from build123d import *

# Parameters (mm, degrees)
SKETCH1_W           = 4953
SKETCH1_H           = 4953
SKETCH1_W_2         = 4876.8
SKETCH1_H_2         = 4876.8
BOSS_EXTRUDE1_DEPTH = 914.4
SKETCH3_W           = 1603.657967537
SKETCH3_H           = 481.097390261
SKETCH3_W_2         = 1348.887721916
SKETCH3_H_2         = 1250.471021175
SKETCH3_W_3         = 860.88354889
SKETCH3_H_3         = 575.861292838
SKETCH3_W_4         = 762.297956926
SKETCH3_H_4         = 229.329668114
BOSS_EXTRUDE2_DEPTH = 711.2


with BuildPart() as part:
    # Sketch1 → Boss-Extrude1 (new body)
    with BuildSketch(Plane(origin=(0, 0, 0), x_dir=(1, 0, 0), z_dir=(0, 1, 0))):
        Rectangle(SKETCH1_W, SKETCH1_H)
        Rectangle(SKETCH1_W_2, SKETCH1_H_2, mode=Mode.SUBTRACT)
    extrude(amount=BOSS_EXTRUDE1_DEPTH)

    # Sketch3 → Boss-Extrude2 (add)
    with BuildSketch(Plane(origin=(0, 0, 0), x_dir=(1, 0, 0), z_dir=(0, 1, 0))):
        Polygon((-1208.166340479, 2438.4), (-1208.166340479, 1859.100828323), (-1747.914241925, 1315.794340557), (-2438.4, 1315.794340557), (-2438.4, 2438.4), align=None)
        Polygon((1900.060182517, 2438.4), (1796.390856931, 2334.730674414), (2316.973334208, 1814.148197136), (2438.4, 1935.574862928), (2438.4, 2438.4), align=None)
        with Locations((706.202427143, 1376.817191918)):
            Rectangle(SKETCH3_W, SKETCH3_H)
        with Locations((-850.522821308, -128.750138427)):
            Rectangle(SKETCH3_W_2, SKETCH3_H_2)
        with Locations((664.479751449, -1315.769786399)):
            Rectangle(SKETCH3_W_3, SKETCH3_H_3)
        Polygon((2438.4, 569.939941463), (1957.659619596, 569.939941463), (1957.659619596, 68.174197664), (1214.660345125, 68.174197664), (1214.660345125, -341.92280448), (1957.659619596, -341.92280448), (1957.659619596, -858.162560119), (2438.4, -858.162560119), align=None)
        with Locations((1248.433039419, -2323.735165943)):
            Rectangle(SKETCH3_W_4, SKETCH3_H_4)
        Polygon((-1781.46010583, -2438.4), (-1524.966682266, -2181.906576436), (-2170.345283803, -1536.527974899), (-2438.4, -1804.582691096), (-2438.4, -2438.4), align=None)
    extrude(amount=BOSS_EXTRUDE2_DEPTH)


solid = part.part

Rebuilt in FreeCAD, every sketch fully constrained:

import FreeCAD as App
import Part
import Sketcher

V = App.Vector
Q = App.Units.Quantity

doc = App.newDocument("Part")
body = doc.addObject("PartDesign::Body", "Body")
body.AllowCompound = True

# Sketch on XZ plane
sketch1 = doc.addObject("Sketcher::SketchObject", "Sketch")
body.addObject(sketch1)
sketch1.AttachmentSupport = (doc.XZ_Plane, [""])
sketch1.MapMode = "FlatFace"
sketch1.addGeometry([
    Part.LineSegment(V(-2476.5, -2476.5, 0), V(-2476.5, 2476.5, 0)),  # 0
    Part.LineSegment(V(-2476.5, 2476.5, 0), V(2476.5, 2476.5, 0)),  # 1
    Part.LineSegment(V(2476.5, 2476.5, 0), V(2476.5, -2476.5, 0)),  # 2
    Part.LineSegment(V(2476.5, -2476.5, 0), V(-2476.5, -2476.5, 0)),  # 3
    Part.LineSegment(V(2438.4, 2438.4, 0), V(-2438.4, 2438.4, 0)),  # 4
    Part.LineSegment(V(-2438.4, 2438.4, 0), V(-2438.4, -2438.4, 0)),  # 5
    Part.LineSegment(V(-2438.4, -2438.4, 0), V(2438.4, -2438.4, 0)),  # 6
    Part.LineSegment(V(2438.4, -2438.4, 0), V(2438.4, 2438.4, 0)),  # 7
], False)
sketch1.addConstraint([
    Sketcher.Constraint("Coincident", 0, 2, 1, 1),
    Sketcher.Constraint("Coincident", 1, 2, 2, 1),
    Sketcher.Constraint("Coincident", 2, 2, 3, 1),
    Sketcher.Constraint("Coincident", 3, 2, 0, 1),
    Sketcher.Constraint("Coincident", 4, 2, 5, 1),
    Sketcher.Constraint("Coincident", 5, 2, 6, 1),
    Sketcher.Constraint("Coincident", 6, 2, 7, 1),
    Sketcher.Constraint("Coincident", 7, 2, 4, 1),
    Sketcher.Constraint("Vertical", 0),
    Sketcher.Constraint("Horizontal", 1),
    Sketcher.Constraint("Vertical", 2),
    Sketcher.Constraint("Horizontal", 3),
    Sketcher.Constraint("Horizontal", 4),
    Sketcher.Constraint("Vertical", 5),
    Sketcher.Constraint("Horizontal", 6),
    Sketcher.Constraint("Vertical", 7),
    Sketcher.Constraint("Symmetric", 0, 2, 2, 2, -1, 1),
    Sketcher.Constraint("Symmetric", 4, 2, 6, 2, -1, 1),
    Sketcher.Constraint("Equal", 3, 0),
    Sketcher.Constraint("Equal", 6, 5),
    Sketcher.Constraint("DistanceX", 1, 1, 1, 2, Q("195 in")),
    Sketcher.Constraint("DistanceX", 4, 2, 4, 1, Q("192 in")),
])
pad1 = doc.addObject("PartDesign::Pad", "Pad")
body.addObject(pad1)
pad1.Profile = sketch1
pad1.Length = Q("36 in")
pad1.Reversed = True

# Sketch on XZ plane
sketch2 = doc.addObject("Sketcher::SketchObject", "Sketch001")
body.addObject(sketch2)
sketch2.AttachmentSupport = (doc.XZ_Plane, [""])
sketch2.MapMode = "FlatFace"
sketch2.addGeometry([
    Part.LineSegment(V(-1208.16634, -1859.100828, 0), V(-1208.16634, -2438.4, 0)),  # 0
    Part.LineSegment(V(-1208.16634, -2438.4, 0), V(-2438.4, -2438.4, 0)),  # 1
    Part.LineSegment(V(-2438.4, -2438.4, 0), V(-2438.4, -1315.794341, 0)),  # 2
    Part.LineSegment(V(-2438.4, -1315.794341, 0), V(-1747.914242, -1315.794341, 0)),  # 3
    Part.LineSegment(V(-1747.914242, -1315.794341, 0), V(-1208.16634, -1859.100828, 0)),  # 4
    Part.LineSegment(V(1900.060183, -2438.4, 0), V(1796.390857, -2334.730674, 0)),  # 5
    Part.LineSegment(V(1796.390857, -2334.730674, 0), V(2316.973334, -1814.148197, 0)),  # 6
    Part.LineSegment(V(2316.973334, -1814.148197, 0), V(2438.4, -1935.574863, 0)),  # 7
    Part.LineSegment(V(2438.4, -1935.574863, 0), V(2438.4, -2438.4, 0)),  # 8
    Part.LineSegment(V(2438.4, -2438.4, 0), V(1900.060183, -2438.4, 0)),  # 9
    Part.LineSegment(V(-95.626557, -1617.365887, 0), V(-95.626557, -1136.268497, 0)),  # 10
    Part.LineSegment(V(-95.626557, -1136.268497, 0), V(1508.031411, -1136.268497, 0)),  # 11
    Part.LineSegment(V(1508.031411, -1136.268497, 0), V(1508.031411, -1617.365887, 0)),  # 12
    Part.LineSegment(V(1508.031411, -1617.365887, 0), V(-95.626557, -1617.365887, 0)),  # 13
    Part.LineSegment(V(-1524.966682, -496.485372, 0), V(-1524.966682, 753.985649, 0)),  # 14
    Part.LineSegment(V(-1524.966682, 753.985649, 0), V(-176.07896, 753.985649, 0)),  # 15
    Part.LineSegment(V(-176.07896, 753.985649, 0), V(-176.07896, -496.485372, 0)),  # 16
    Part.LineSegment(V(-176.07896, -496.485372, 0), V(-1524.966682, -496.485372, 0)),  # 17
    Part.LineSegment(V(234.037977, 1027.83914, 0), V(234.037977, 1603.700433, 0)),  # 18
    Part.LineSegment(V(234.037977, 1603.700433, 0), V(1094.921526, 1603.700433, 0)),  # 19
    Part.LineSegment(V(1094.921526, 1603.700433, 0), V(1094.921526, 1027.83914, 0)),  # 20
    Part.LineSegment(V(1094.921526, 1027.83914, 0), V(234.037977, 1027.83914, 0)),  # 21
    Part.LineSegment(V(2438.4, -569.939941, 0), V(1957.65962, -569.939941, 0)),  # 22
    Part.LineSegment(V(1957.65962, -569.939941, 0), V(1957.65962, -68.174198, 0)),  # 23
    Part.LineSegment(V(1957.65962, -68.174198, 0), V(1214.660345, -68.174198, 0)),  # 24
    Part.LineSegment(V(1214.660345, -68.174198, 0), V(1214.660345, 341.922804, 0)),  # 25
    Part.LineSegment(V(1214.660345, 341.922804, 0), V(1957.65962, 341.922804, 0)),  # 26
    Part.LineSegment(V(1957.65962, 341.922804, 0), V(1957.65962, 858.16256, 0)),  # 27
    Part.LineSegment(V(1957.65962, 858.16256, 0), V(2438.4, 858.16256, 0)),  # 28
    Part.LineSegment(V(2438.4, 858.16256, 0), V(2438.4, -569.939941, 0)),  # 29
    Part.LineSegment(V(867.284061, 2209.070332, 0), V(867.284061, 2438.4, 0)),  # 30
    Part.LineSegment(V(867.284061, 2438.4, 0), V(1629.582018, 2438.4, 0)),  # 31
    Part.LineSegment(V(1629.582018, 2438.4, 0), V(1629.582018, 2209.070332, 0)),  # 32
    Part.LineSegment(V(1629.582018, 2209.070332, 0), V(867.284061, 2209.070332, 0)),  # 33
    Part.LineSegment(V(-1781.460106, 2438.4, 0), V(-1524.966682, 2181.906576, 0)),  # 34
    Part.LineSegment(V(-1524.966682, 2181.906576, 0), V(-2170.345284, 1536.527975, 0)),  # 35
    Part.LineSegment(V(-2170.345284, 1536.527975, 0), V(-2438.4, 1804.582691, 0)),  # 36
    Part.LineSegment(V(-2438.4, 1804.582691, 0), V(-2438.4, 2438.4, 0)),  # 37
    Part.LineSegment(V(-2438.4, 2438.4, 0), V(-1781.460106, 2438.4, 0)),  # 38
], False)
sketch2.addConstraint([
    Sketcher.Constraint("Coincident", 0, 2, 1, 1),
    Sketcher.Constraint("Coincident", 1, 2, 2, 1),
    Sketcher.Constraint("Coincident", 2, 2, 3, 1),
    Sketcher.Constraint("Coincident", 3, 2, 4, 1),
    Sketcher.Constraint("Coincident", 4, 2, 0, 1),
    Sketcher.Constraint("Coincident", 5, 2, 6, 1),
    Sketcher.Constraint("Coincident", 6, 2, 7, 1),
    Sketcher.Constraint("Coincident", 7, 2, 8, 1),
    Sketcher.Constraint("Coincident", 8, 2, 9, 1),
    Sketcher.Constraint("Coincident", 9, 2, 5, 1),
    Sketcher.Constraint("Coincident", 10, 2, 11, 1),
    Sketcher.Constraint("Coincident", 11, 2, 12, 1),
    Sketcher.Constraint("Coincident", 12, 2, 13, 1),
    Sketcher.Constraint("Coincident", 13, 2, 10, 1),
    Sketcher.Constraint("Coincident", 14, 2, 15, 1),
    Sketcher.Constraint("Coincident", 15, 2, 16, 1),
    Sketcher.Constraint("Coincident", 16, 2, 17, 1),
    Sketcher.Constraint("Coincident", 17, 2, 14, 1),
    Sketcher.Constraint("Coincident", 18, 2, 19, 1),
    Sketcher.Constraint("Coincident", 19, 2, 20, 1),
    Sketcher.Constraint("Coincident", 20, 2, 21, 1),
    Sketcher.Constraint("Coincident", 21, 2, 18, 1),
    Sketcher.Constraint("Coincident", 22, 2, 23, 1),
    Sketcher.Constraint("Coincident", 23, 2, 24, 1),
    Sketcher.Constraint("Coincident", 24, 2, 25, 1),
    Sketcher.Constraint("Coincident", 25, 2, 26, 1),
    Sketcher.Constraint("Coincident", 26, 2, 27, 1),
    Sketcher.Constraint("Coincident", 27, 2, 28, 1),
    Sketcher.Constraint("Coincident", 28, 2, 29, 1),
    Sketcher.Constraint("Coincident", 29, 2, 22, 1),
    Sketcher.Constraint("Coincident", 30, 2, 31, 1),
    Sketcher.Constraint("Coincident", 31, 2, 32, 1),
    Sketcher.Constraint("Coincident", 32, 2, 33, 1),
    Sketcher.Constraint("Coincident", 33, 2, 30, 1),
    Sketcher.Constraint("Coincident", 34, 2, 35, 1),
    Sketcher.Constraint("Coincident", 35, 2, 36, 1),
    Sketcher.Constraint("Coincident", 36, 2, 37, 1),
    Sketcher.Constraint("Coincident", 37, 2, 38, 1),
    Sketcher.Constraint("Coincident", 38, 2, 34, 1),
    Sketcher.Constraint("Vertical", 0),
    Sketcher.Constraint("Horizontal", 1),
    Sketcher.Constraint("Vertical", 2),
    Sketcher.Constraint("Horizontal", 3),
    Sketcher.Constraint("Vertical", 8),
    Sketcher.Constraint("Horizontal", 9),
    Sketcher.Constraint("Vertical", 10),
    Sketcher.Constraint("Horizontal", 11),
    Sketcher.Constraint("Vertical", 12),
    Sketcher.Constraint("Horizontal", 13),
    Sketcher.Constraint("Vertical", 14),
    Sketcher.Constraint("Horizontal", 15),
    Sketcher.Constraint("Vertical", 16),
    Sketcher.Constraint("Horizontal", 17),
    Sketcher.Constraint("Vertical", 18),
    Sketcher.Constraint("Horizontal", 19),
    Sketcher.Constraint("Vertical", 20),
    Sketcher.Constraint("Horizontal", 21),
    Sketcher.Constraint("Horizontal", 22),
    Sketcher.Constraint("Vertical", 23),
    Sketcher.Constraint("Horizontal", 24),
    Sketcher.Constraint("Vertical", 25),
    Sketcher.Constraint("Horizontal", 26),
    Sketcher.Constraint("Vertical", 27),
    Sketcher.Constraint("Horizontal", 28),
    Sketcher.Constraint("Vertical", 29),
    Sketcher.Constraint("Vertical", 30),
    Sketcher.Constraint("Horizontal", 31),
    Sketcher.Constraint("Vertical", 32),
    Sketcher.Constraint("Horizontal", 33),
    Sketcher.Constraint("Vertical", 37),
    Sketcher.Constraint("Horizontal", 38),
    Sketcher.Constraint("Symmetric", 8, 2, 37, 2, -1, 1),
    Sketcher.Constraint("Symmetric", 1, 2, 8, 2, -2),
    Sketcher.Constraint("Perpendicular", 5, 6),
    Sketcher.Constraint("Perpendicular", 6, 7),
    Sketcher.Constraint("Parallel", 7, 34),
    Sketcher.Constraint("Perpendicular", 34, 35),
    Sketcher.Constraint("Perpendicular", 35, 36),
    Sketcher.Constraint("Horizontal", 31, 2, 37, 2),
    Sketcher.Constraint("Vertical", 23, 2, 26, 2),
    Sketcher.Constraint("Vertical", 8, 2, 28, 2),
    Sketcher.Constraint("Vertical", 17, 2, 34, 2),
    Sketcher.Constraint("DistanceY", 0, 2, -1, 1, Q("96 in")),
    Sketcher.Constraint("DistanceX", 1, 2, -1, 1, Q("96 in")),
    Sketcher.Constraint("Angle", 5, Q("135 deg")),
    Sketcher.Constraint("DistanceY", 27, 1, 27, 2, Q("20.3243998 in")),
    Sketcher.Constraint("DistanceY", 29, 2, 29, 1, 1428.102502),
    Sketcher.Constraint("DistanceY", 11, 2, 22, 2, Q("22.2963998 in")),
    Sketcher.Constraint("DistanceX", 34, 2, 33, 2, Q("94.1831001 in")),
    Sketcher.Constraint("Distance", 6, 736.2148),
    Sketcher.Constraint("DistanceX", 1, 2, 1, 1, 1230.23366),
    Sketcher.Constraint("DistanceX", 3, 1, 3, 2, 690.485758),
    Sketcher.Constraint("DistanceX", 15, 1, 15, 2, 1348.887722),
    Sketcher.Constraint("DistanceX", 19, 1, 19, 2, 860.883549),
    Sketcher.Constraint("DistanceX", 22, 2, 22, 1, 480.74038),
    Sketcher.Constraint("DistanceY", 0, 2, 0, 1, 579.299172),
    Sketcher.Constraint("DistanceY", 2, 1, 2, 2, 1122.605659),
    Sketcher.Constraint("DistanceY", 10, 1, 10, 2, 481.09739),
    Sketcher.Constraint("DistanceY", 14, 1, 14, 2, 1250.471021),
    Sketcher.Constraint("DistanceY", 30, 1, 30, 2, 229.329668),
    Sketcher.Constraint("DistanceY", 37, 1, 37, 2, 633.817309),
    Sketcher.Constraint("DistanceX", 3, 2, 5, 2, 3544.305099),
    Sketcher.Constraint("DistanceY", 6, 2, 11, 2, 677.8797),
    Sketcher.Constraint("DistanceY", 11, 2, 23, 2, 1068.094299),
    Sketcher.Constraint("DistanceX", 31, 2, 27, 2, 328.077602),
    Sketcher.Constraint("DistanceY", 19, 2, 32, 2, 605.369899),
    Sketcher.Constraint("DistanceX", 35, 2, 34, 2, 645.378602),
    Sketcher.Constraint("Distance", 34, 362.736478),
    Sketcher.Constraint("DistanceX", 9, 2, 9, 1, 538.339817),
    Sketcher.Constraint("DistanceX", 11, 1, 11, 2, 1603.657968),
    Sketcher.Constraint("DistanceX", 24, 2, 24, 1, 742.999274),
    Sketcher.Constraint("DistanceY", 18, 1, 18, 2, 575.861293),
    Sketcher.Constraint("DistanceX", -1, 1, 11, 2, 1508.031411),
    Sketcher.Constraint("DistanceY", -1, 1, 14, 2, 753.985649),
    Sketcher.Constraint("DistanceX", 14, 2, 18, 2, 1759.004659),
])
pad2 = doc.addObject("PartDesign::Pad", "Pad001")
body.addObject(pad2)
pad2.Profile = sketch2
pad2.Length = Q("28 in")
pad2.Reversed = True

doc.recompute()
